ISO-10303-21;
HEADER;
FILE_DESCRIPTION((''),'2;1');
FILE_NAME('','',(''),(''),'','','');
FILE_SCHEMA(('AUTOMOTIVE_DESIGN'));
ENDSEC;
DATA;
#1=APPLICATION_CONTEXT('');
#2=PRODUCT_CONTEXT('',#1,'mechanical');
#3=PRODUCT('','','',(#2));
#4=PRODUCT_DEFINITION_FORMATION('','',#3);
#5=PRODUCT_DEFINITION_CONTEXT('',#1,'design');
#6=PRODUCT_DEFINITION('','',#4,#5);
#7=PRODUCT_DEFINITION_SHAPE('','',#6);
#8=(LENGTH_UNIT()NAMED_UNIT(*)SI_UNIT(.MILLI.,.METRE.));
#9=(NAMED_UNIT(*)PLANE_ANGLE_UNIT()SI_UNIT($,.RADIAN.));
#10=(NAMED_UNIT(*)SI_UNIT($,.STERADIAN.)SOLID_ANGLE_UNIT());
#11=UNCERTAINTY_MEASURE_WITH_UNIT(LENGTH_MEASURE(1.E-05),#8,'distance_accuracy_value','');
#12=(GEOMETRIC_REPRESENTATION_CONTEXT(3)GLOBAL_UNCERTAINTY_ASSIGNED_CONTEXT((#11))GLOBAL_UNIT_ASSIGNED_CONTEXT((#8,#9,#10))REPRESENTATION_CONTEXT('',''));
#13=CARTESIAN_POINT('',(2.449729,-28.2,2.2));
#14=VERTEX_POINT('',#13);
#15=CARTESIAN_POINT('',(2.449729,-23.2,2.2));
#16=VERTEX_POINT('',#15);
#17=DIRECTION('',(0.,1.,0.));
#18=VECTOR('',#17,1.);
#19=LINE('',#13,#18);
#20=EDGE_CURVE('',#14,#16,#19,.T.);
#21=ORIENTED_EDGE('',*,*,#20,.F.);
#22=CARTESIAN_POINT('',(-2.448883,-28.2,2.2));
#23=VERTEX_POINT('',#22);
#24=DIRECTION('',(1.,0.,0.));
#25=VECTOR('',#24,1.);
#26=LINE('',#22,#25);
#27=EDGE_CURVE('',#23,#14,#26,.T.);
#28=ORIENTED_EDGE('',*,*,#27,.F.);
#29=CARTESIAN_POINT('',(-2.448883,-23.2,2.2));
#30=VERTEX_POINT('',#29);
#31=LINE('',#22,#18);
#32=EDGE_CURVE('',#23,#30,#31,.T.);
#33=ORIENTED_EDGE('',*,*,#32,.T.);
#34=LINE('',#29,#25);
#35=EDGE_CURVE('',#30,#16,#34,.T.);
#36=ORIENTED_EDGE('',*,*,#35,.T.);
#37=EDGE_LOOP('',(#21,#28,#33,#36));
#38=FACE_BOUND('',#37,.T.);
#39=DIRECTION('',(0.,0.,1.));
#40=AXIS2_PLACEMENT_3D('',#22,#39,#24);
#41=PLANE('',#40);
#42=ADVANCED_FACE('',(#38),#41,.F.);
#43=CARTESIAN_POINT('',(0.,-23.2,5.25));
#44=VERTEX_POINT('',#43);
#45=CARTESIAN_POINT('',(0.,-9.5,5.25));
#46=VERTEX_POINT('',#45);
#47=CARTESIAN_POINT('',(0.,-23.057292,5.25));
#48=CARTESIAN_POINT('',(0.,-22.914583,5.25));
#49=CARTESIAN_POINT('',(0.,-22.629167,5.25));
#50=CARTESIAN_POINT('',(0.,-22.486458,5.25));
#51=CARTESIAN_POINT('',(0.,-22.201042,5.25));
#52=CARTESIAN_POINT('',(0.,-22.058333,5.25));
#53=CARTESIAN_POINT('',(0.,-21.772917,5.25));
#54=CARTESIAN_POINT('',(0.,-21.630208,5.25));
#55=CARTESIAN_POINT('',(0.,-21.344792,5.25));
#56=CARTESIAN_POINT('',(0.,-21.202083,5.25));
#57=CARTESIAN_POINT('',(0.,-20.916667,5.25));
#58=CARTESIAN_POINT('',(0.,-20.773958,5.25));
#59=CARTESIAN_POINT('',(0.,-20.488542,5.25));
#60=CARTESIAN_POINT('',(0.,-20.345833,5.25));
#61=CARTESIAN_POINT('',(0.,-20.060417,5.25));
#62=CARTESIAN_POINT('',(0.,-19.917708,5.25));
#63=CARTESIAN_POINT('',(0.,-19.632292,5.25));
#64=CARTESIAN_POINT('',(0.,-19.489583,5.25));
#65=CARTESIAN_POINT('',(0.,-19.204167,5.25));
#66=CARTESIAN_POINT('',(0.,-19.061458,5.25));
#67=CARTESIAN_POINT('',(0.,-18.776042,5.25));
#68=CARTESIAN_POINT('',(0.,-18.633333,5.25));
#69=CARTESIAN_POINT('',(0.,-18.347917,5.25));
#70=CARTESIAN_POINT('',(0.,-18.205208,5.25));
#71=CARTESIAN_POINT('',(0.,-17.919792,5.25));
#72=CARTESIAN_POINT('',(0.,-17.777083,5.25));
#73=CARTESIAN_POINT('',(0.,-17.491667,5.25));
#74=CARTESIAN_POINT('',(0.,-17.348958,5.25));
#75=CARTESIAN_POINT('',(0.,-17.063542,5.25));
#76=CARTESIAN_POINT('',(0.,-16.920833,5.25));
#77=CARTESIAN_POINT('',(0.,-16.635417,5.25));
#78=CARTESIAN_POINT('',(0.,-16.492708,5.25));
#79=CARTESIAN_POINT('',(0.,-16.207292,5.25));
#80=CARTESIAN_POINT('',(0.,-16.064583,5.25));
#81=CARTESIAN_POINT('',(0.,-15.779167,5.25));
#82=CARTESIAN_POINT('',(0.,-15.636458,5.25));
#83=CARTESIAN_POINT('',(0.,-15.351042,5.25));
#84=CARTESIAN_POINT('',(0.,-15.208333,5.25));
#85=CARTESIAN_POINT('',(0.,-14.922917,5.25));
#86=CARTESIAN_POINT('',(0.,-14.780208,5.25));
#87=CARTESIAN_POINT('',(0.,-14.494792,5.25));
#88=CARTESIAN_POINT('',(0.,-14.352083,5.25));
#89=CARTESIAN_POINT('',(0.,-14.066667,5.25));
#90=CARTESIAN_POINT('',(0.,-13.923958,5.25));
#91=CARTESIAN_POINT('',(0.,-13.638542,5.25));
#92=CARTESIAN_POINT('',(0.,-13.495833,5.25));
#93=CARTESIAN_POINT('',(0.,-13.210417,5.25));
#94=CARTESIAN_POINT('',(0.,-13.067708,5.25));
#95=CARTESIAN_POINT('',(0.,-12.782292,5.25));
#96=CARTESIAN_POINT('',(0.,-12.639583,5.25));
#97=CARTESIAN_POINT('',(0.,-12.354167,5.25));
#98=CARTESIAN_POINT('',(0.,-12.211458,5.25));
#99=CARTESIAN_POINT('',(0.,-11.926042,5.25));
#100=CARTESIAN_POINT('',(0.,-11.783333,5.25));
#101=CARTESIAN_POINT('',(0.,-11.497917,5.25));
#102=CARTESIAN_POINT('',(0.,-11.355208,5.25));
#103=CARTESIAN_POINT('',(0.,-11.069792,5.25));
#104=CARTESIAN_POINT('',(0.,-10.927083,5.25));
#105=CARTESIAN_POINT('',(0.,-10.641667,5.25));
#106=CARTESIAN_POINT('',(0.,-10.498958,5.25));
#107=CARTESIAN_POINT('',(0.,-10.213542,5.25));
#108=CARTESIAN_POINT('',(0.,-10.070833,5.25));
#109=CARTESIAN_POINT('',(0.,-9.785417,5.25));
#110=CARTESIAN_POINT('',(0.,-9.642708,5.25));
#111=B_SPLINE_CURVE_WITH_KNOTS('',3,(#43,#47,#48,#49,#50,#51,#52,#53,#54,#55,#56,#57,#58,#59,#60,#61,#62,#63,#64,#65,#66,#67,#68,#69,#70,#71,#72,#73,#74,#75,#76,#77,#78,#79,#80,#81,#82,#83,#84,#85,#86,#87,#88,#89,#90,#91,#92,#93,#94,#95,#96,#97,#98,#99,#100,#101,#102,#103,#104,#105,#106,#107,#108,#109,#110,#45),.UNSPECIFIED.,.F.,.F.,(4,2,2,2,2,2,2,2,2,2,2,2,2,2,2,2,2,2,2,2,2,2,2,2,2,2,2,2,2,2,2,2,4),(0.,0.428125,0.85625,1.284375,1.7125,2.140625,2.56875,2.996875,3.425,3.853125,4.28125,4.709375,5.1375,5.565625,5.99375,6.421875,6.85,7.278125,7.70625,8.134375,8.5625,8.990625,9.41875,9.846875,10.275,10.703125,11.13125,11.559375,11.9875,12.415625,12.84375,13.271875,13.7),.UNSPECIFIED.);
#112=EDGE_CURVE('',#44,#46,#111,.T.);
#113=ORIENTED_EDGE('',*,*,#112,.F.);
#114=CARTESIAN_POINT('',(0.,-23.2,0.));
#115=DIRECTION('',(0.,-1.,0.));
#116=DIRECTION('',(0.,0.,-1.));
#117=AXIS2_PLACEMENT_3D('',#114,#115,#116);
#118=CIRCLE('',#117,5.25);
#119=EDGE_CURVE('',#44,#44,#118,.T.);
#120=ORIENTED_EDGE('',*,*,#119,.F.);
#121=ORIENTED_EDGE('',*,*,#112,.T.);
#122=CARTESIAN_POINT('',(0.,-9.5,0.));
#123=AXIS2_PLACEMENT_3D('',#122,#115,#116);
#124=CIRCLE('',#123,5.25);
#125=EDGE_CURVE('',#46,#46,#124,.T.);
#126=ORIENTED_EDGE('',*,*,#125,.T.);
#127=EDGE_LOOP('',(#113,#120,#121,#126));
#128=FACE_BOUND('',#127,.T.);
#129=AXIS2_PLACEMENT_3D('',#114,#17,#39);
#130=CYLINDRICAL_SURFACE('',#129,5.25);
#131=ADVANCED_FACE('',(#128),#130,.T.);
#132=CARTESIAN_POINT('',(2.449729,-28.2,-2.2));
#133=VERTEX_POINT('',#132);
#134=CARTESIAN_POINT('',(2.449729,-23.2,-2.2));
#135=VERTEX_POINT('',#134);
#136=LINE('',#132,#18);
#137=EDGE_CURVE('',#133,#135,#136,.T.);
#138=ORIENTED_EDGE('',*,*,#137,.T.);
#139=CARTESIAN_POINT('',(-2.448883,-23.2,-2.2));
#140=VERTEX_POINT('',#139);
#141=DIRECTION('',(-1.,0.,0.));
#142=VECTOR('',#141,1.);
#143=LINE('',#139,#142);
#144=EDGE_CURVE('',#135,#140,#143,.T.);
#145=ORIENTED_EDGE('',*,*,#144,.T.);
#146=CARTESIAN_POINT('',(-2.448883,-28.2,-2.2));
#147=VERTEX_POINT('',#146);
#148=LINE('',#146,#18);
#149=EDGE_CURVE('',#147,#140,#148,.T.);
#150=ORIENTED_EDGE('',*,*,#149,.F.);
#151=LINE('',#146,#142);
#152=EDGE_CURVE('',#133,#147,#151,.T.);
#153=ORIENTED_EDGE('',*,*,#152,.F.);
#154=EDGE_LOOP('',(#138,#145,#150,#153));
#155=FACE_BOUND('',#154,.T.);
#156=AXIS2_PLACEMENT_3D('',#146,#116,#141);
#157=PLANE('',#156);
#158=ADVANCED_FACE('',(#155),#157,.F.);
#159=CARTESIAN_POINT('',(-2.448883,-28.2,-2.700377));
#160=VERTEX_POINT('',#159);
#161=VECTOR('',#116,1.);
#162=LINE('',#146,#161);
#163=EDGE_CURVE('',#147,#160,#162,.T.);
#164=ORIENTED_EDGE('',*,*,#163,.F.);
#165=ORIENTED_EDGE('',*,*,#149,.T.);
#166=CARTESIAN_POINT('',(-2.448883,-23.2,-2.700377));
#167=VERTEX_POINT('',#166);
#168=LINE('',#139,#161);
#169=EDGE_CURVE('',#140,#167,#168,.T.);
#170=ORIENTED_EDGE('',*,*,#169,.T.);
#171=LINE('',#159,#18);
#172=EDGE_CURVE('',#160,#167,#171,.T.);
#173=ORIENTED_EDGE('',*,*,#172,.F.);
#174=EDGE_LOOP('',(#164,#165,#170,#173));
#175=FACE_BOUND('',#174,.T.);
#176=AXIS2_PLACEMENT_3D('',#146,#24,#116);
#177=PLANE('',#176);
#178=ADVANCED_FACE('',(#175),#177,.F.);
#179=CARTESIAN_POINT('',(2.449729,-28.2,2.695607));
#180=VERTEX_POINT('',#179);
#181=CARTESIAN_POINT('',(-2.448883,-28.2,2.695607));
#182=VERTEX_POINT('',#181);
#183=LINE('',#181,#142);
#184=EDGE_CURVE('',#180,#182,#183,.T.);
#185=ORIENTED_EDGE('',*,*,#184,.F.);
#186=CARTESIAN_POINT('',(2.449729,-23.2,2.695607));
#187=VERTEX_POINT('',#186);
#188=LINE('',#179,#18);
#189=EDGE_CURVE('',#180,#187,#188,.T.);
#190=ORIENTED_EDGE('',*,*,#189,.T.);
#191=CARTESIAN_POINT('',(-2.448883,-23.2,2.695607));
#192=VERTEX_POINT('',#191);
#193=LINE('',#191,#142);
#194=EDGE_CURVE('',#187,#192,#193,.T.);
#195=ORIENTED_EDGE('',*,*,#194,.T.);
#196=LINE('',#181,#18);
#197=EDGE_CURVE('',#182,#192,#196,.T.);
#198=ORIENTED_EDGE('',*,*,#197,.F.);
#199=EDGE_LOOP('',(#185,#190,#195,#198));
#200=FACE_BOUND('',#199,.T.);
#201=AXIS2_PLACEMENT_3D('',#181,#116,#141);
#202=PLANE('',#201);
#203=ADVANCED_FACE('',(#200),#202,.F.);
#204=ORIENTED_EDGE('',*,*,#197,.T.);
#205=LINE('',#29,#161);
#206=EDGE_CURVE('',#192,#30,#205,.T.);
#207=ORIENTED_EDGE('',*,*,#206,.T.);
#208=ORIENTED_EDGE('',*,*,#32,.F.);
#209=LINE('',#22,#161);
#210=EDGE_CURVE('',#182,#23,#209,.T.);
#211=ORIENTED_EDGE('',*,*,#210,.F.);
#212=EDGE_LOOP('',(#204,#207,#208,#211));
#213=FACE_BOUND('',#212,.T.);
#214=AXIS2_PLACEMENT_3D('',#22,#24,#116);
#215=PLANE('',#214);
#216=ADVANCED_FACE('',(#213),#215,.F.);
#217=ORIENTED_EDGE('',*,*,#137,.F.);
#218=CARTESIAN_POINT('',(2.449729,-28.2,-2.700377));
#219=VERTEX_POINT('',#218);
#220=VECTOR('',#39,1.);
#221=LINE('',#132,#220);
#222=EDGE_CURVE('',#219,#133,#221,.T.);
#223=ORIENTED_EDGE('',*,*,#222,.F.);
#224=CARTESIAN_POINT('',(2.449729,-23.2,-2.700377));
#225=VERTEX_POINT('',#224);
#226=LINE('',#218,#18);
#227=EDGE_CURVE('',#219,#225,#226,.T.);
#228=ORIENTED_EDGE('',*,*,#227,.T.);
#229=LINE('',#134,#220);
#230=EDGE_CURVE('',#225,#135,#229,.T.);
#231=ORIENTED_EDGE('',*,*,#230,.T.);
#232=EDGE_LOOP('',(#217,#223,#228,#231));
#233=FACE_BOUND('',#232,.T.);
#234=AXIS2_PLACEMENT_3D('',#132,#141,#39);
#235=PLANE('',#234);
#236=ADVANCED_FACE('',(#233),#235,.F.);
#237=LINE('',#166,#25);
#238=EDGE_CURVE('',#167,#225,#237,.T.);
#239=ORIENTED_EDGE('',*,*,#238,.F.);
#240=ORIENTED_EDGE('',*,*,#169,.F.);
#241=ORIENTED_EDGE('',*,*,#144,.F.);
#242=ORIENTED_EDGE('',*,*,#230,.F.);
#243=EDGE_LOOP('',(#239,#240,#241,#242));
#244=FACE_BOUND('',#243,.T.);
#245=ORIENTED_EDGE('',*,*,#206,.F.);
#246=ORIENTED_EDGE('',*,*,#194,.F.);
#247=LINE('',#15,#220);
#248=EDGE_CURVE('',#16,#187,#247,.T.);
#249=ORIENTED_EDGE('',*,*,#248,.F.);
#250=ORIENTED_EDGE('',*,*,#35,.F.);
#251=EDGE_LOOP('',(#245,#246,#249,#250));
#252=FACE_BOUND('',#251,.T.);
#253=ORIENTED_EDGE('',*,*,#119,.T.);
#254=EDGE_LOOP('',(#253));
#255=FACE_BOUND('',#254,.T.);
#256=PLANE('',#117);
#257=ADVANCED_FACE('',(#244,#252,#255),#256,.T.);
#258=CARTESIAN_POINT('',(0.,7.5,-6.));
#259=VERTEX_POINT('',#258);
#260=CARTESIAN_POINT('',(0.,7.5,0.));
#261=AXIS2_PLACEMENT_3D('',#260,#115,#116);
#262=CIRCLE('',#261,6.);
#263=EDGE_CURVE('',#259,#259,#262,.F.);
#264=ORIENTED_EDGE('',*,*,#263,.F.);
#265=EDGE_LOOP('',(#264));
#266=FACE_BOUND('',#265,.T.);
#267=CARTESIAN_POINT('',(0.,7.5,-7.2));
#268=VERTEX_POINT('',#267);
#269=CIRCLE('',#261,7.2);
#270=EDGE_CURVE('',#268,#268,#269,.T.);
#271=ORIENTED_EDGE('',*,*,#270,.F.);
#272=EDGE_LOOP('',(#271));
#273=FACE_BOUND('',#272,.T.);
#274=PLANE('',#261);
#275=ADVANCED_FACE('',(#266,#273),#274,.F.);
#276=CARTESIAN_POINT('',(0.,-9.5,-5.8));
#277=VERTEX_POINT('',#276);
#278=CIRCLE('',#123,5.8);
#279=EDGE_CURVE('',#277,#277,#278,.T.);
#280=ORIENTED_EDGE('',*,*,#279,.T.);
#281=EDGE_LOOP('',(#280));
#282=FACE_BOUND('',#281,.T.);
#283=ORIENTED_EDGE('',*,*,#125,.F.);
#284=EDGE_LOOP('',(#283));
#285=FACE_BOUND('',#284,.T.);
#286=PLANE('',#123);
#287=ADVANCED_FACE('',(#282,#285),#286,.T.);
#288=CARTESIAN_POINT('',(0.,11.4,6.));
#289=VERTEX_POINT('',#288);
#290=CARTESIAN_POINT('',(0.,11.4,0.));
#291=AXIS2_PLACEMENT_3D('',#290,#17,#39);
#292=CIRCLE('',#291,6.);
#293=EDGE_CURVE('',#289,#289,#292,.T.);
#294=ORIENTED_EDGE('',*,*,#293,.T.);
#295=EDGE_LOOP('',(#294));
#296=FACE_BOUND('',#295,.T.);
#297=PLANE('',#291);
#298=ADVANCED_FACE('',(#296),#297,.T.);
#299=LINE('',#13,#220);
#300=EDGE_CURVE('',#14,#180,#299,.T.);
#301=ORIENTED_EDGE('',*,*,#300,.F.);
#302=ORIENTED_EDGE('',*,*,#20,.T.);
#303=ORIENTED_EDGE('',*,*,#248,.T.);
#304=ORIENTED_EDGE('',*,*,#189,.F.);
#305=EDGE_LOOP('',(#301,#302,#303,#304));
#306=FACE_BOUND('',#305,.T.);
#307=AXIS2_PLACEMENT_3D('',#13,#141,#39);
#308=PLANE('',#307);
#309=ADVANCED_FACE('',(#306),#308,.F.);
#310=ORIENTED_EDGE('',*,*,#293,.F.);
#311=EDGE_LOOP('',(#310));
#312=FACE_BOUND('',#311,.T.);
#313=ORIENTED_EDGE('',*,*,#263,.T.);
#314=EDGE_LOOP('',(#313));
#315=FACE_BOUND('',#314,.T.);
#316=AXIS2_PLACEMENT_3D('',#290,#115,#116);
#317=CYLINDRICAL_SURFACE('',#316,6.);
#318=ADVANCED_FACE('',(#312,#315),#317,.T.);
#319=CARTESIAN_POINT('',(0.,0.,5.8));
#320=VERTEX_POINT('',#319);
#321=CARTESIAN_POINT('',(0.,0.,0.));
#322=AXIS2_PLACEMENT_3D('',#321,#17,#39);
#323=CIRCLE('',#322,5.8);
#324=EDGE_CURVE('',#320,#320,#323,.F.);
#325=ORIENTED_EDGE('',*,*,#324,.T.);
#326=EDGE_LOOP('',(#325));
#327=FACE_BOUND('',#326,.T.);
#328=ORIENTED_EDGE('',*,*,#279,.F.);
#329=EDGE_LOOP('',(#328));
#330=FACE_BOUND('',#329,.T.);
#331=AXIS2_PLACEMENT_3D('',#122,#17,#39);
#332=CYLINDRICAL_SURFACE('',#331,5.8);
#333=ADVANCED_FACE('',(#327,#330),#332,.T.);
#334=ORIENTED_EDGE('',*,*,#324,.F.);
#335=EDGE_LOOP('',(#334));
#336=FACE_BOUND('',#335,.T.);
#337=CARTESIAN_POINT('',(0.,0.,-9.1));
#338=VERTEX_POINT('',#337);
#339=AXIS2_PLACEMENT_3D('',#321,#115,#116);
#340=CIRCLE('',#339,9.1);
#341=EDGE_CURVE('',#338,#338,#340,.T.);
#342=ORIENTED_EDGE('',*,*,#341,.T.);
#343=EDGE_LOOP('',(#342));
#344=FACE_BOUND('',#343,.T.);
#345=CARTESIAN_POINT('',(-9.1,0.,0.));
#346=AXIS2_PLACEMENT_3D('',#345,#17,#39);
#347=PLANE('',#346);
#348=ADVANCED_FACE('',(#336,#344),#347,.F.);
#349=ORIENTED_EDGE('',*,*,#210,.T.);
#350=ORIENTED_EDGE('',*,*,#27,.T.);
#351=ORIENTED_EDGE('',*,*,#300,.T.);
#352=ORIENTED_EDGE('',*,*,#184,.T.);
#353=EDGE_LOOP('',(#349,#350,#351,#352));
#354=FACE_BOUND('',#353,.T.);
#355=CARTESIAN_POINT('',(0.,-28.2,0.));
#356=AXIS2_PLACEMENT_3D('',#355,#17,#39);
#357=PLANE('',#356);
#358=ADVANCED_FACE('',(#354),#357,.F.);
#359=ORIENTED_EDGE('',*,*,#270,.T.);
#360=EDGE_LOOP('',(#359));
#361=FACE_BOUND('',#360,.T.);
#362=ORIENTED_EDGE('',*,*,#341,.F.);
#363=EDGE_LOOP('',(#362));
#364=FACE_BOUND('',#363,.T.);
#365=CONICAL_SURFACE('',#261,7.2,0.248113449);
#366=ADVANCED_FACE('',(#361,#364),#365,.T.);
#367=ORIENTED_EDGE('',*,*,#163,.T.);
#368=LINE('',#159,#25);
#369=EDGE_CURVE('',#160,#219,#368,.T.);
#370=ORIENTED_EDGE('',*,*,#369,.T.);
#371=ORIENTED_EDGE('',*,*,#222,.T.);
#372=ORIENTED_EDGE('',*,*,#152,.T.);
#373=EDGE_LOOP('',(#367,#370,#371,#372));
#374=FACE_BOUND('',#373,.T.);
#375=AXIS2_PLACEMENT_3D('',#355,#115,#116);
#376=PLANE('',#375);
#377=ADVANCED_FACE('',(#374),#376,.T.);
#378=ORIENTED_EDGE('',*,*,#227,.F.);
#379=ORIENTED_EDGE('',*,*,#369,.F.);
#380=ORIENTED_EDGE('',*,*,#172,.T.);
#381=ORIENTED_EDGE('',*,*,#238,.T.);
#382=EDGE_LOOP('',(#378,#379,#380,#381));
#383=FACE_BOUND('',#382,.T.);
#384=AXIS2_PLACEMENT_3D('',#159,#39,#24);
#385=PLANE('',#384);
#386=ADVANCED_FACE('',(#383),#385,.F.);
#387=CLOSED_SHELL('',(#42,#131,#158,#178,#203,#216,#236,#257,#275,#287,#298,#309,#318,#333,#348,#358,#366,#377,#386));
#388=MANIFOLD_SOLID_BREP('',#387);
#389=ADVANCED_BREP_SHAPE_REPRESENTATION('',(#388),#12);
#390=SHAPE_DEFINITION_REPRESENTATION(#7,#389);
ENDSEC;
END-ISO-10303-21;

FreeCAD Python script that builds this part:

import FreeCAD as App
import Part
import Sketcher

V = App.Vector
Q = App.Units.Quantity


def add_polygon(sketch, points):
    """Adds a closed chain of lines whose ends are joined by coincident constraints."""
    first, n = sketch.GeometryCount, len(points)
    for a, b in zip(points, points[1:] + points[:1]):
        sketch.addGeometry(Part.LineSegment(App.Vector(*a, 0), App.Vector(*b, 0)), False)
    for i in range(n):
        sketch.addConstraint(Sketcher.Constraint("Coincident", first + i, 2, first + (i + 1) % n, 1))

doc = App.newDocument("Part")
body = doc.addObject("PartDesign::Body", "Body")

sketch1 = body.newObject("Sketcher::SketchObject", "Sketch")
sketch1.AttachmentSupport = (doc.getObject("XY_Plane"), [""])
sketch1.MapMode = "FlatFace"
add_polygon(sketch1, [(-7, 8), (-9, 0), (0, 0), (0, 8)])
sketch1.addConstraint([
    Sketcher.Constraint("Horizontal", 1),
    Sketcher.Constraint("Vertical", 2),
    Sketcher.Constraint("Horizontal", 3),
    Sketcher.Constraint("Coincident", 1, 2, -1, 1),
    Sketcher.Constraint("DistanceX", 1, 1, 1, 2, Q("9.1 mm")),
    Sketcher.Constraint("DistanceX", 3, 2, 3, 1, Q("7.2 mm")),
    Sketcher.Constraint("DistanceY", 2, 1, 2, 2, Q("7.5 mm")),
])
revolution = body.newObject("PartDesign::Revolution", "Revolution")
revolution.Profile = sketch1
revolution.ReferenceAxis = (sketch1, ["V_Axis"])
revolution.Angle = 360

sketch2 = body.newObject("Sketcher::SketchObject", "Sketch001")
sketch2.AttachmentSupport = (doc.getObject("XZ_Plane"), [""])
sketch2.MapMode = "FlatFace"
sketch2.AttachmentOffset = App.Placement(V(0, 0, -7.5), App.Rotation())
sketch2.addGeometry(Part.Circle(V(0, 0, 0), V(0, 0, 1), 6), False)
sketch2.addConstraint([
    Sketcher.Constraint("Coincident", 0, 3, -1, 1),
    Sketcher.Constraint("Diameter", 0, Q("12 mm")),
])
pad1 = body.newObject("PartDesign::Pad", "Pad")
pad1.Profile = sketch2
pad1.Length = 3.9
pad1.Reversed = True

sketch3 = body.newObject("Sketcher::SketchObject", "Sketch002")
sketch3.AttachmentSupport = (doc.getObject("XZ_Plane"), [""])
sketch3.MapMode = "FlatFace"
sketch3.addGeometry(Part.Circle(V(0, 0, 0), V(0, 0, 1), 6), False)
sketch3.addConstraint([
    Sketcher.Constraint("Coincident", 0, 3, -1, 1),
    Sketcher.Constraint("Diameter", 0, Q("11.6 mm")),
])
pad2 = body.newObject("PartDesign::Pad", "Pad001")
pad2.Profile = sketch3
pad2.Length = 9.5

sketch4 = body.newObject("Sketcher::SketchObject", "Sketch003")
sketch4.AttachmentSupport = (doc.getObject("XZ_Plane"), [""])
sketch4.MapMode = "FlatFace"
sketch4.AttachmentOffset = App.Placement(V(0, 0, 9.5), App.Rotation())
sketch4.addGeometry(Part.Circle(V(0, 0, 0), V(0, 0, 1), 5), False)
sketch4.addConstraint([
    Sketcher.Constraint("Coincident", 0, 3, -1, 1),
    Sketcher.Constraint("Diameter", 0, Q("10.5 mm")),
])
pad3 = body.newObject("PartDesign::Pad", "Pad002")
pad3.Profile = sketch4
pad3.Length = 13.7

sketch5 = body.newObject("Sketcher::SketchObject", "Sketch004")
sketch5.AttachmentSupport = (doc.getObject("XZ_Plane"), [""])
sketch5.MapMode = "FlatFace"
sketch5.AttachmentOffset = App.Placement(V(0, 0, 23.2), App.Rotation())
add_polygon(sketch5, [(2.45, -2.7), (2.45, -2.2), (-2.45, -2.2), (-2.45, -2.7)])
add_polygon(sketch5, [(2.45, 2.2), (2.45, 2.7), (-2.45, 2.7), (-2.45, 2.2)])
sketch5.addConstraint([
    Sketcher.Constraint("Vertical", 0),
    Sketcher.Constraint("Horizontal", 1),
    Sketcher.Constraint("Vertical", 2),
    Sketcher.Constraint("Horizontal", 3),
    Sketcher.Constraint("Vertical", 4),
    Sketcher.Constraint("Horizontal", 5),
    Sketcher.Constraint("Vertical", 6),
    Sketcher.Constraint("Horizontal", 7),
    Sketcher.Constraint("Symmetric", 1, 2, 6, 2, -1),
    Sketcher.Constraint("Vertical", 3, 2, 4, 2),
    Sketcher.Constraint("DistanceY", 0, 2, -1, 1, Q("2.2 mm")),
    Sketcher.Constraint("DistanceX", 1, 2, 1, 1, Q("4.898613 mm")),
    Sketcher.Constraint("DistanceY", 0, 1, 0, 2, Q("0.500377 mm")),
    Sketcher.Constraint("DistanceY", 4, 1, 4, 2, Q("0.495607 mm")),
    Sketcher.Constraint("DistanceX", -1, 1, 0, 2, Q("2.449729 mm")),
])
pad4 = body.newObject("PartDesign::Pad", "Pad003")
pad4.Profile = sketch5
pad4.Length = 5

doc.recompute()
